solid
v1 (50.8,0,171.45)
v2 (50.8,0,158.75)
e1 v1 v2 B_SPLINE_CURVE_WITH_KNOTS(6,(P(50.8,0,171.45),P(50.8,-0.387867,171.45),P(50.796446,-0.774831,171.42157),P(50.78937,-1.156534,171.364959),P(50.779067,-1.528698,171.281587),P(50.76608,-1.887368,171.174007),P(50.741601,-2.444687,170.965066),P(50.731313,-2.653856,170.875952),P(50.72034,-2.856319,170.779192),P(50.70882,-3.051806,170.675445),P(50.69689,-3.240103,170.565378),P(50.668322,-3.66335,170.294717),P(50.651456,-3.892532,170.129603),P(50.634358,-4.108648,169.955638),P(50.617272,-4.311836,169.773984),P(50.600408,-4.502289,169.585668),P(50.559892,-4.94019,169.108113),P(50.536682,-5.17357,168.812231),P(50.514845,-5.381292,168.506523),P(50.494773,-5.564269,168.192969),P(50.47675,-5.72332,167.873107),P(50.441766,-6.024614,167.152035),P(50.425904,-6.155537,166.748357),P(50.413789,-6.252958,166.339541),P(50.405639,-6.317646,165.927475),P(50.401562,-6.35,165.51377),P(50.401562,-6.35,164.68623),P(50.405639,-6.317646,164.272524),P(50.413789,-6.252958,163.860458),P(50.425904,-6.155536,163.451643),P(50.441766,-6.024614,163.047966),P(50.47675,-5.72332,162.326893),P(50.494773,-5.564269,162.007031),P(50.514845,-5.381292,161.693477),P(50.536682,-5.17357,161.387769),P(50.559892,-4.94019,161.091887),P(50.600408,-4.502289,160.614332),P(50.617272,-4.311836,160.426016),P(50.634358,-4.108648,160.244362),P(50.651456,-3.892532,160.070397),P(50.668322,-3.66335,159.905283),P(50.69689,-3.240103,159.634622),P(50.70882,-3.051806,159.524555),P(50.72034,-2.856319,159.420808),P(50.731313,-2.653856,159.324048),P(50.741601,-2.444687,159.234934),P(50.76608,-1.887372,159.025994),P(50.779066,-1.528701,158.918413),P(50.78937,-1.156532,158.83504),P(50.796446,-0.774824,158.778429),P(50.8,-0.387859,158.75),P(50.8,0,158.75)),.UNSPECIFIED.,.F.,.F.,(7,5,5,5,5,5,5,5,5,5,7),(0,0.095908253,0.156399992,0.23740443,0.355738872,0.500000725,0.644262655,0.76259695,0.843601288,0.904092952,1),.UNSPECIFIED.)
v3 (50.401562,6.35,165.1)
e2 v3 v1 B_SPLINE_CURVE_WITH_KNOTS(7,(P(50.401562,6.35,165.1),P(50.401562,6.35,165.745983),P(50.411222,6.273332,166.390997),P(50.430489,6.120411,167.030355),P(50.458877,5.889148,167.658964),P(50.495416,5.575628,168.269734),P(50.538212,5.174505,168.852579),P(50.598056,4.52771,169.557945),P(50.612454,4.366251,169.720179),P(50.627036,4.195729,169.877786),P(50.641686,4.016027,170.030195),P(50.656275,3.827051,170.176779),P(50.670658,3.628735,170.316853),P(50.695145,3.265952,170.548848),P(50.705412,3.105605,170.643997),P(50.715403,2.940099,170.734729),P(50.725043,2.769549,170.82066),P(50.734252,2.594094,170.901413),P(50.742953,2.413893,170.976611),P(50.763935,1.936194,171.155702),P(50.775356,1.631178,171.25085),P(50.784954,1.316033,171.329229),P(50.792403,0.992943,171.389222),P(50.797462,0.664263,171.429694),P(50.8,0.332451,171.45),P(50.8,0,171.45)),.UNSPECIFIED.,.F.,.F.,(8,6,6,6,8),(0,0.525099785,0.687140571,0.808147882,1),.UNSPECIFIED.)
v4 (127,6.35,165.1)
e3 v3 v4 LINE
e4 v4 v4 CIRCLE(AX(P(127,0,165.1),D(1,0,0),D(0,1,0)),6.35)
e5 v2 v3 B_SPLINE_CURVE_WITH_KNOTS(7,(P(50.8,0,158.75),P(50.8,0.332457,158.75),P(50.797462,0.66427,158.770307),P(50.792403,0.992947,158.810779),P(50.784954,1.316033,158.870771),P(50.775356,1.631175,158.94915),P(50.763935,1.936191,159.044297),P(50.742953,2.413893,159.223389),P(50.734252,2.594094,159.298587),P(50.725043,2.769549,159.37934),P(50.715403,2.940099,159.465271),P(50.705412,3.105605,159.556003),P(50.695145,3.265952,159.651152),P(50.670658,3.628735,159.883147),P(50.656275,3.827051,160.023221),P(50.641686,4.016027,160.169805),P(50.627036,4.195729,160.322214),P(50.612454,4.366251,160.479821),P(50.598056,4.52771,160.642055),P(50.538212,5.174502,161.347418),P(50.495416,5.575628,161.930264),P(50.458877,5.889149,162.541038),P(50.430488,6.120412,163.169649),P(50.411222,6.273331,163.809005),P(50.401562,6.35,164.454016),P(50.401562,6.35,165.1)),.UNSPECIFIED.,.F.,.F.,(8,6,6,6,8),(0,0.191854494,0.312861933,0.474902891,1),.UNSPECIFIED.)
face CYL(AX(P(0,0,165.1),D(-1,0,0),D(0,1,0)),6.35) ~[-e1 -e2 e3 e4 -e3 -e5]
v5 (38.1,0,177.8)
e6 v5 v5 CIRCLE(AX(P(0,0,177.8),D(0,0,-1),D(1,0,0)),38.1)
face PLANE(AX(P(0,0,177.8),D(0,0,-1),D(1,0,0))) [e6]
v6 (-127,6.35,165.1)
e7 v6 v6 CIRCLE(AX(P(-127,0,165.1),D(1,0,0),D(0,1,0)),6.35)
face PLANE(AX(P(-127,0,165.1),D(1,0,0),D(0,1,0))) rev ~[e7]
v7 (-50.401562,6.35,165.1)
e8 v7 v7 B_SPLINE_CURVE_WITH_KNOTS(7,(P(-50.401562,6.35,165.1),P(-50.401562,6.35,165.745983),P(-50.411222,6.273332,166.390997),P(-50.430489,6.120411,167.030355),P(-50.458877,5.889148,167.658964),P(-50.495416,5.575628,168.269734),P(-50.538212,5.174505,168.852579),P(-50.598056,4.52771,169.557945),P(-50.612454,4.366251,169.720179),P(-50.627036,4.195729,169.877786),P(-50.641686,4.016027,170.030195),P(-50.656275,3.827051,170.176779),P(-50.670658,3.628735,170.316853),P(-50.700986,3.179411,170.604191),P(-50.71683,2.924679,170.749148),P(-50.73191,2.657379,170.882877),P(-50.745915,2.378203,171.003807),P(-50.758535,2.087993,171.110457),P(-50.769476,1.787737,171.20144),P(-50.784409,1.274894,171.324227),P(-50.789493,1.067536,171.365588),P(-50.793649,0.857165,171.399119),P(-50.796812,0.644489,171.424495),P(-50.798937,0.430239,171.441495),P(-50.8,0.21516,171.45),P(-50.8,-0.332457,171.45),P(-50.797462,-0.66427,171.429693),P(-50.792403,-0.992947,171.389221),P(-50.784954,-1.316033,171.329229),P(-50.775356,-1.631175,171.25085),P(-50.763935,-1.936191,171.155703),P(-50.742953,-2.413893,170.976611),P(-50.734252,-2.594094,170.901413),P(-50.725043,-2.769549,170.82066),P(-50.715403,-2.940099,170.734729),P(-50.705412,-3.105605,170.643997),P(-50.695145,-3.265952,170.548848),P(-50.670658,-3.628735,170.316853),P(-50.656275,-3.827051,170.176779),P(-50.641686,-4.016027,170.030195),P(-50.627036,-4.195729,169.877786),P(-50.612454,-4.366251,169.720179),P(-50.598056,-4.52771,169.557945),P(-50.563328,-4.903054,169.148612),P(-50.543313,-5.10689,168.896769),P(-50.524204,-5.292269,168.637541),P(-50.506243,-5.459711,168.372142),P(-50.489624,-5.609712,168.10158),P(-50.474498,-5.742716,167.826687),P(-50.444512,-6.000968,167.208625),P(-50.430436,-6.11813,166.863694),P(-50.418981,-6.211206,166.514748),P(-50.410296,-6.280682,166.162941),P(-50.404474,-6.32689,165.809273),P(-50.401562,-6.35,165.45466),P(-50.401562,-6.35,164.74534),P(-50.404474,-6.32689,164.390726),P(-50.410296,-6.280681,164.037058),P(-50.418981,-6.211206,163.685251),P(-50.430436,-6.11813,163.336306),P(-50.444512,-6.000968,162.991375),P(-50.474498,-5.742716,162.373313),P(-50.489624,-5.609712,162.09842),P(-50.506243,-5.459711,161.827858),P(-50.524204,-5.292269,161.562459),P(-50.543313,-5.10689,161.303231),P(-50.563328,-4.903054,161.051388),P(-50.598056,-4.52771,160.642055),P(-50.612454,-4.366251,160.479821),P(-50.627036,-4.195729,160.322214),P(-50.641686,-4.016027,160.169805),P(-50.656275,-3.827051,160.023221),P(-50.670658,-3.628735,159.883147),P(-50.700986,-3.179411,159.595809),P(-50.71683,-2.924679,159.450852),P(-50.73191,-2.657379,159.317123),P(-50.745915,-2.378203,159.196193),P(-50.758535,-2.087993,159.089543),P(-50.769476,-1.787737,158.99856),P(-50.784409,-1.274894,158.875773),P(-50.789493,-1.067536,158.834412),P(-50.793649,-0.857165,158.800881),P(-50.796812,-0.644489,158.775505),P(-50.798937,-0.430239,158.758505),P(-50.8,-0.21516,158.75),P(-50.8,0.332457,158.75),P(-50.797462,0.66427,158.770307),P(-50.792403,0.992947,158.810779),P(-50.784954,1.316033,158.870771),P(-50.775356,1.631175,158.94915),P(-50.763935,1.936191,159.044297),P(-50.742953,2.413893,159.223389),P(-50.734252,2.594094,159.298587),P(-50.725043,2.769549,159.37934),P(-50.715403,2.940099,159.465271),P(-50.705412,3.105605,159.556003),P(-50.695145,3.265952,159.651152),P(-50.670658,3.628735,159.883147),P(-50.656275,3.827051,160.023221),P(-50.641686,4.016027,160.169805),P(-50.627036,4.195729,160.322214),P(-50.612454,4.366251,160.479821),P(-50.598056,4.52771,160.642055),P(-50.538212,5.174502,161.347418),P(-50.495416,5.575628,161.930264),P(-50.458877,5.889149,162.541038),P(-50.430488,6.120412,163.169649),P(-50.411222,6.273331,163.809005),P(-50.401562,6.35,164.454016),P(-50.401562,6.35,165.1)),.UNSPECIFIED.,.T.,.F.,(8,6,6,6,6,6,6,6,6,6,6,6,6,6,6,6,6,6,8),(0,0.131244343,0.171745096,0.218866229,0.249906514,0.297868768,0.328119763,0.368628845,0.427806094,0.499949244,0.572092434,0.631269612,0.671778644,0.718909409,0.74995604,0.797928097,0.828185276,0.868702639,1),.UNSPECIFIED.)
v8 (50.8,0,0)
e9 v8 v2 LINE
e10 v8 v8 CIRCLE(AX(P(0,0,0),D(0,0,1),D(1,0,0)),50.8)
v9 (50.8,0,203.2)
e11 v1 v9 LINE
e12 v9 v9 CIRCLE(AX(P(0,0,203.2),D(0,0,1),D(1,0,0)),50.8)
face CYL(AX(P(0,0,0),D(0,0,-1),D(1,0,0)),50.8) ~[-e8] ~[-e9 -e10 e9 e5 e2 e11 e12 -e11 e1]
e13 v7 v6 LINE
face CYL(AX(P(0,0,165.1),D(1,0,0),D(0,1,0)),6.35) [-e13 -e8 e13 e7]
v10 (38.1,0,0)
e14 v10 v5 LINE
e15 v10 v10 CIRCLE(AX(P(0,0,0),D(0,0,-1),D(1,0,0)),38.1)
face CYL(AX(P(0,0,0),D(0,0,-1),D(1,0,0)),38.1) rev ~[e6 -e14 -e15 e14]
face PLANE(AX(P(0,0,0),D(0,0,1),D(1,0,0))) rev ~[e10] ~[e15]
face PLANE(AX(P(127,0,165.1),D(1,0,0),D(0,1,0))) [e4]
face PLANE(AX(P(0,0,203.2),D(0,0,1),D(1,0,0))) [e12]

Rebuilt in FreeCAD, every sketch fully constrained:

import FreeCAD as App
import Part
import Sketcher
from FreeCAD import Vector
Q = App.Units.Quantity

doc = App.newDocument("Part")
body = doc.addObject("PartDesign::Body", "Body")

sketch1 = body.newObject("Sketcher::SketchObject", "Sketch")
sketch1.AttachmentSupport = (doc.getObject("XY_Plane"), [""])
sketch1.MapMode = "FlatFace"
sketch1.addGeometry(Part.Circle(Vector(0, 0, 0), Vector(0, 0, 1), 50.8), False)
sketch1.addConstraint([
    Sketcher.Constraint("Coincident", 0, 3, -1, 1),
    Sketcher.Constraint("Diameter", 0, Q("4 in")),
])
pad1 = body.newObject("PartDesign::Pad", "Pad")
pad1.Profile = sketch1
pad1.Length = Q("8 in")

sketch2 = body.newObject("Sketcher::SketchObject", "Sketch001")
sketch2.AttachmentSupport = (doc.getObject("YZ_Plane"), [""])
sketch2.MapMode = "FlatFace"
sketch2.addGeometry(Part.Circle(Vector(0, 165.1, 0), Vector(0, 0, 1), 6.35), False)
sketch2.addConstraint([
    Sketcher.Constraint("PointOnObject", 0, 3, -2),
    Sketcher.Constraint("Diameter", 0, Q("0.5 in")),
    Sketcher.Constraint("DistanceY", -1, 1, 0, 3, Q("6.5 in")),
])
pad2 = body.newObject("PartDesign::Pad", "Pad001")
pad2.Profile = sketch2
pad2.Type = "TwoLengths"
pad2.Length = Q("5 in")
pad2.Length2 = Q("5 in")

sketch3 = body.newObject("Sketcher::SketchObject", "Sketch002")
sketch3.AttachmentSupport = (doc.getObject("XY_Plane"), [""])
sketch3.MapMode = "FlatFace"
sketch3.addGeometry(Part.Circle(Vector(0, 0, 0), Vector(0, 0, 1), 38.1), False)
sketch3.addConstraint([
    Sketcher.Constraint("Coincident", 0, 3, -1, 1),
    Sketcher.Constraint("Diameter", 0, Q("3 in")),
])
pocket1 = body.newObject("PartDesign::Pocket", "Pocket")
pocket1.Profile = sketch3
pocket1.Length = Q("7 in")
pocket1.Reversed = True

doc.recompute()
